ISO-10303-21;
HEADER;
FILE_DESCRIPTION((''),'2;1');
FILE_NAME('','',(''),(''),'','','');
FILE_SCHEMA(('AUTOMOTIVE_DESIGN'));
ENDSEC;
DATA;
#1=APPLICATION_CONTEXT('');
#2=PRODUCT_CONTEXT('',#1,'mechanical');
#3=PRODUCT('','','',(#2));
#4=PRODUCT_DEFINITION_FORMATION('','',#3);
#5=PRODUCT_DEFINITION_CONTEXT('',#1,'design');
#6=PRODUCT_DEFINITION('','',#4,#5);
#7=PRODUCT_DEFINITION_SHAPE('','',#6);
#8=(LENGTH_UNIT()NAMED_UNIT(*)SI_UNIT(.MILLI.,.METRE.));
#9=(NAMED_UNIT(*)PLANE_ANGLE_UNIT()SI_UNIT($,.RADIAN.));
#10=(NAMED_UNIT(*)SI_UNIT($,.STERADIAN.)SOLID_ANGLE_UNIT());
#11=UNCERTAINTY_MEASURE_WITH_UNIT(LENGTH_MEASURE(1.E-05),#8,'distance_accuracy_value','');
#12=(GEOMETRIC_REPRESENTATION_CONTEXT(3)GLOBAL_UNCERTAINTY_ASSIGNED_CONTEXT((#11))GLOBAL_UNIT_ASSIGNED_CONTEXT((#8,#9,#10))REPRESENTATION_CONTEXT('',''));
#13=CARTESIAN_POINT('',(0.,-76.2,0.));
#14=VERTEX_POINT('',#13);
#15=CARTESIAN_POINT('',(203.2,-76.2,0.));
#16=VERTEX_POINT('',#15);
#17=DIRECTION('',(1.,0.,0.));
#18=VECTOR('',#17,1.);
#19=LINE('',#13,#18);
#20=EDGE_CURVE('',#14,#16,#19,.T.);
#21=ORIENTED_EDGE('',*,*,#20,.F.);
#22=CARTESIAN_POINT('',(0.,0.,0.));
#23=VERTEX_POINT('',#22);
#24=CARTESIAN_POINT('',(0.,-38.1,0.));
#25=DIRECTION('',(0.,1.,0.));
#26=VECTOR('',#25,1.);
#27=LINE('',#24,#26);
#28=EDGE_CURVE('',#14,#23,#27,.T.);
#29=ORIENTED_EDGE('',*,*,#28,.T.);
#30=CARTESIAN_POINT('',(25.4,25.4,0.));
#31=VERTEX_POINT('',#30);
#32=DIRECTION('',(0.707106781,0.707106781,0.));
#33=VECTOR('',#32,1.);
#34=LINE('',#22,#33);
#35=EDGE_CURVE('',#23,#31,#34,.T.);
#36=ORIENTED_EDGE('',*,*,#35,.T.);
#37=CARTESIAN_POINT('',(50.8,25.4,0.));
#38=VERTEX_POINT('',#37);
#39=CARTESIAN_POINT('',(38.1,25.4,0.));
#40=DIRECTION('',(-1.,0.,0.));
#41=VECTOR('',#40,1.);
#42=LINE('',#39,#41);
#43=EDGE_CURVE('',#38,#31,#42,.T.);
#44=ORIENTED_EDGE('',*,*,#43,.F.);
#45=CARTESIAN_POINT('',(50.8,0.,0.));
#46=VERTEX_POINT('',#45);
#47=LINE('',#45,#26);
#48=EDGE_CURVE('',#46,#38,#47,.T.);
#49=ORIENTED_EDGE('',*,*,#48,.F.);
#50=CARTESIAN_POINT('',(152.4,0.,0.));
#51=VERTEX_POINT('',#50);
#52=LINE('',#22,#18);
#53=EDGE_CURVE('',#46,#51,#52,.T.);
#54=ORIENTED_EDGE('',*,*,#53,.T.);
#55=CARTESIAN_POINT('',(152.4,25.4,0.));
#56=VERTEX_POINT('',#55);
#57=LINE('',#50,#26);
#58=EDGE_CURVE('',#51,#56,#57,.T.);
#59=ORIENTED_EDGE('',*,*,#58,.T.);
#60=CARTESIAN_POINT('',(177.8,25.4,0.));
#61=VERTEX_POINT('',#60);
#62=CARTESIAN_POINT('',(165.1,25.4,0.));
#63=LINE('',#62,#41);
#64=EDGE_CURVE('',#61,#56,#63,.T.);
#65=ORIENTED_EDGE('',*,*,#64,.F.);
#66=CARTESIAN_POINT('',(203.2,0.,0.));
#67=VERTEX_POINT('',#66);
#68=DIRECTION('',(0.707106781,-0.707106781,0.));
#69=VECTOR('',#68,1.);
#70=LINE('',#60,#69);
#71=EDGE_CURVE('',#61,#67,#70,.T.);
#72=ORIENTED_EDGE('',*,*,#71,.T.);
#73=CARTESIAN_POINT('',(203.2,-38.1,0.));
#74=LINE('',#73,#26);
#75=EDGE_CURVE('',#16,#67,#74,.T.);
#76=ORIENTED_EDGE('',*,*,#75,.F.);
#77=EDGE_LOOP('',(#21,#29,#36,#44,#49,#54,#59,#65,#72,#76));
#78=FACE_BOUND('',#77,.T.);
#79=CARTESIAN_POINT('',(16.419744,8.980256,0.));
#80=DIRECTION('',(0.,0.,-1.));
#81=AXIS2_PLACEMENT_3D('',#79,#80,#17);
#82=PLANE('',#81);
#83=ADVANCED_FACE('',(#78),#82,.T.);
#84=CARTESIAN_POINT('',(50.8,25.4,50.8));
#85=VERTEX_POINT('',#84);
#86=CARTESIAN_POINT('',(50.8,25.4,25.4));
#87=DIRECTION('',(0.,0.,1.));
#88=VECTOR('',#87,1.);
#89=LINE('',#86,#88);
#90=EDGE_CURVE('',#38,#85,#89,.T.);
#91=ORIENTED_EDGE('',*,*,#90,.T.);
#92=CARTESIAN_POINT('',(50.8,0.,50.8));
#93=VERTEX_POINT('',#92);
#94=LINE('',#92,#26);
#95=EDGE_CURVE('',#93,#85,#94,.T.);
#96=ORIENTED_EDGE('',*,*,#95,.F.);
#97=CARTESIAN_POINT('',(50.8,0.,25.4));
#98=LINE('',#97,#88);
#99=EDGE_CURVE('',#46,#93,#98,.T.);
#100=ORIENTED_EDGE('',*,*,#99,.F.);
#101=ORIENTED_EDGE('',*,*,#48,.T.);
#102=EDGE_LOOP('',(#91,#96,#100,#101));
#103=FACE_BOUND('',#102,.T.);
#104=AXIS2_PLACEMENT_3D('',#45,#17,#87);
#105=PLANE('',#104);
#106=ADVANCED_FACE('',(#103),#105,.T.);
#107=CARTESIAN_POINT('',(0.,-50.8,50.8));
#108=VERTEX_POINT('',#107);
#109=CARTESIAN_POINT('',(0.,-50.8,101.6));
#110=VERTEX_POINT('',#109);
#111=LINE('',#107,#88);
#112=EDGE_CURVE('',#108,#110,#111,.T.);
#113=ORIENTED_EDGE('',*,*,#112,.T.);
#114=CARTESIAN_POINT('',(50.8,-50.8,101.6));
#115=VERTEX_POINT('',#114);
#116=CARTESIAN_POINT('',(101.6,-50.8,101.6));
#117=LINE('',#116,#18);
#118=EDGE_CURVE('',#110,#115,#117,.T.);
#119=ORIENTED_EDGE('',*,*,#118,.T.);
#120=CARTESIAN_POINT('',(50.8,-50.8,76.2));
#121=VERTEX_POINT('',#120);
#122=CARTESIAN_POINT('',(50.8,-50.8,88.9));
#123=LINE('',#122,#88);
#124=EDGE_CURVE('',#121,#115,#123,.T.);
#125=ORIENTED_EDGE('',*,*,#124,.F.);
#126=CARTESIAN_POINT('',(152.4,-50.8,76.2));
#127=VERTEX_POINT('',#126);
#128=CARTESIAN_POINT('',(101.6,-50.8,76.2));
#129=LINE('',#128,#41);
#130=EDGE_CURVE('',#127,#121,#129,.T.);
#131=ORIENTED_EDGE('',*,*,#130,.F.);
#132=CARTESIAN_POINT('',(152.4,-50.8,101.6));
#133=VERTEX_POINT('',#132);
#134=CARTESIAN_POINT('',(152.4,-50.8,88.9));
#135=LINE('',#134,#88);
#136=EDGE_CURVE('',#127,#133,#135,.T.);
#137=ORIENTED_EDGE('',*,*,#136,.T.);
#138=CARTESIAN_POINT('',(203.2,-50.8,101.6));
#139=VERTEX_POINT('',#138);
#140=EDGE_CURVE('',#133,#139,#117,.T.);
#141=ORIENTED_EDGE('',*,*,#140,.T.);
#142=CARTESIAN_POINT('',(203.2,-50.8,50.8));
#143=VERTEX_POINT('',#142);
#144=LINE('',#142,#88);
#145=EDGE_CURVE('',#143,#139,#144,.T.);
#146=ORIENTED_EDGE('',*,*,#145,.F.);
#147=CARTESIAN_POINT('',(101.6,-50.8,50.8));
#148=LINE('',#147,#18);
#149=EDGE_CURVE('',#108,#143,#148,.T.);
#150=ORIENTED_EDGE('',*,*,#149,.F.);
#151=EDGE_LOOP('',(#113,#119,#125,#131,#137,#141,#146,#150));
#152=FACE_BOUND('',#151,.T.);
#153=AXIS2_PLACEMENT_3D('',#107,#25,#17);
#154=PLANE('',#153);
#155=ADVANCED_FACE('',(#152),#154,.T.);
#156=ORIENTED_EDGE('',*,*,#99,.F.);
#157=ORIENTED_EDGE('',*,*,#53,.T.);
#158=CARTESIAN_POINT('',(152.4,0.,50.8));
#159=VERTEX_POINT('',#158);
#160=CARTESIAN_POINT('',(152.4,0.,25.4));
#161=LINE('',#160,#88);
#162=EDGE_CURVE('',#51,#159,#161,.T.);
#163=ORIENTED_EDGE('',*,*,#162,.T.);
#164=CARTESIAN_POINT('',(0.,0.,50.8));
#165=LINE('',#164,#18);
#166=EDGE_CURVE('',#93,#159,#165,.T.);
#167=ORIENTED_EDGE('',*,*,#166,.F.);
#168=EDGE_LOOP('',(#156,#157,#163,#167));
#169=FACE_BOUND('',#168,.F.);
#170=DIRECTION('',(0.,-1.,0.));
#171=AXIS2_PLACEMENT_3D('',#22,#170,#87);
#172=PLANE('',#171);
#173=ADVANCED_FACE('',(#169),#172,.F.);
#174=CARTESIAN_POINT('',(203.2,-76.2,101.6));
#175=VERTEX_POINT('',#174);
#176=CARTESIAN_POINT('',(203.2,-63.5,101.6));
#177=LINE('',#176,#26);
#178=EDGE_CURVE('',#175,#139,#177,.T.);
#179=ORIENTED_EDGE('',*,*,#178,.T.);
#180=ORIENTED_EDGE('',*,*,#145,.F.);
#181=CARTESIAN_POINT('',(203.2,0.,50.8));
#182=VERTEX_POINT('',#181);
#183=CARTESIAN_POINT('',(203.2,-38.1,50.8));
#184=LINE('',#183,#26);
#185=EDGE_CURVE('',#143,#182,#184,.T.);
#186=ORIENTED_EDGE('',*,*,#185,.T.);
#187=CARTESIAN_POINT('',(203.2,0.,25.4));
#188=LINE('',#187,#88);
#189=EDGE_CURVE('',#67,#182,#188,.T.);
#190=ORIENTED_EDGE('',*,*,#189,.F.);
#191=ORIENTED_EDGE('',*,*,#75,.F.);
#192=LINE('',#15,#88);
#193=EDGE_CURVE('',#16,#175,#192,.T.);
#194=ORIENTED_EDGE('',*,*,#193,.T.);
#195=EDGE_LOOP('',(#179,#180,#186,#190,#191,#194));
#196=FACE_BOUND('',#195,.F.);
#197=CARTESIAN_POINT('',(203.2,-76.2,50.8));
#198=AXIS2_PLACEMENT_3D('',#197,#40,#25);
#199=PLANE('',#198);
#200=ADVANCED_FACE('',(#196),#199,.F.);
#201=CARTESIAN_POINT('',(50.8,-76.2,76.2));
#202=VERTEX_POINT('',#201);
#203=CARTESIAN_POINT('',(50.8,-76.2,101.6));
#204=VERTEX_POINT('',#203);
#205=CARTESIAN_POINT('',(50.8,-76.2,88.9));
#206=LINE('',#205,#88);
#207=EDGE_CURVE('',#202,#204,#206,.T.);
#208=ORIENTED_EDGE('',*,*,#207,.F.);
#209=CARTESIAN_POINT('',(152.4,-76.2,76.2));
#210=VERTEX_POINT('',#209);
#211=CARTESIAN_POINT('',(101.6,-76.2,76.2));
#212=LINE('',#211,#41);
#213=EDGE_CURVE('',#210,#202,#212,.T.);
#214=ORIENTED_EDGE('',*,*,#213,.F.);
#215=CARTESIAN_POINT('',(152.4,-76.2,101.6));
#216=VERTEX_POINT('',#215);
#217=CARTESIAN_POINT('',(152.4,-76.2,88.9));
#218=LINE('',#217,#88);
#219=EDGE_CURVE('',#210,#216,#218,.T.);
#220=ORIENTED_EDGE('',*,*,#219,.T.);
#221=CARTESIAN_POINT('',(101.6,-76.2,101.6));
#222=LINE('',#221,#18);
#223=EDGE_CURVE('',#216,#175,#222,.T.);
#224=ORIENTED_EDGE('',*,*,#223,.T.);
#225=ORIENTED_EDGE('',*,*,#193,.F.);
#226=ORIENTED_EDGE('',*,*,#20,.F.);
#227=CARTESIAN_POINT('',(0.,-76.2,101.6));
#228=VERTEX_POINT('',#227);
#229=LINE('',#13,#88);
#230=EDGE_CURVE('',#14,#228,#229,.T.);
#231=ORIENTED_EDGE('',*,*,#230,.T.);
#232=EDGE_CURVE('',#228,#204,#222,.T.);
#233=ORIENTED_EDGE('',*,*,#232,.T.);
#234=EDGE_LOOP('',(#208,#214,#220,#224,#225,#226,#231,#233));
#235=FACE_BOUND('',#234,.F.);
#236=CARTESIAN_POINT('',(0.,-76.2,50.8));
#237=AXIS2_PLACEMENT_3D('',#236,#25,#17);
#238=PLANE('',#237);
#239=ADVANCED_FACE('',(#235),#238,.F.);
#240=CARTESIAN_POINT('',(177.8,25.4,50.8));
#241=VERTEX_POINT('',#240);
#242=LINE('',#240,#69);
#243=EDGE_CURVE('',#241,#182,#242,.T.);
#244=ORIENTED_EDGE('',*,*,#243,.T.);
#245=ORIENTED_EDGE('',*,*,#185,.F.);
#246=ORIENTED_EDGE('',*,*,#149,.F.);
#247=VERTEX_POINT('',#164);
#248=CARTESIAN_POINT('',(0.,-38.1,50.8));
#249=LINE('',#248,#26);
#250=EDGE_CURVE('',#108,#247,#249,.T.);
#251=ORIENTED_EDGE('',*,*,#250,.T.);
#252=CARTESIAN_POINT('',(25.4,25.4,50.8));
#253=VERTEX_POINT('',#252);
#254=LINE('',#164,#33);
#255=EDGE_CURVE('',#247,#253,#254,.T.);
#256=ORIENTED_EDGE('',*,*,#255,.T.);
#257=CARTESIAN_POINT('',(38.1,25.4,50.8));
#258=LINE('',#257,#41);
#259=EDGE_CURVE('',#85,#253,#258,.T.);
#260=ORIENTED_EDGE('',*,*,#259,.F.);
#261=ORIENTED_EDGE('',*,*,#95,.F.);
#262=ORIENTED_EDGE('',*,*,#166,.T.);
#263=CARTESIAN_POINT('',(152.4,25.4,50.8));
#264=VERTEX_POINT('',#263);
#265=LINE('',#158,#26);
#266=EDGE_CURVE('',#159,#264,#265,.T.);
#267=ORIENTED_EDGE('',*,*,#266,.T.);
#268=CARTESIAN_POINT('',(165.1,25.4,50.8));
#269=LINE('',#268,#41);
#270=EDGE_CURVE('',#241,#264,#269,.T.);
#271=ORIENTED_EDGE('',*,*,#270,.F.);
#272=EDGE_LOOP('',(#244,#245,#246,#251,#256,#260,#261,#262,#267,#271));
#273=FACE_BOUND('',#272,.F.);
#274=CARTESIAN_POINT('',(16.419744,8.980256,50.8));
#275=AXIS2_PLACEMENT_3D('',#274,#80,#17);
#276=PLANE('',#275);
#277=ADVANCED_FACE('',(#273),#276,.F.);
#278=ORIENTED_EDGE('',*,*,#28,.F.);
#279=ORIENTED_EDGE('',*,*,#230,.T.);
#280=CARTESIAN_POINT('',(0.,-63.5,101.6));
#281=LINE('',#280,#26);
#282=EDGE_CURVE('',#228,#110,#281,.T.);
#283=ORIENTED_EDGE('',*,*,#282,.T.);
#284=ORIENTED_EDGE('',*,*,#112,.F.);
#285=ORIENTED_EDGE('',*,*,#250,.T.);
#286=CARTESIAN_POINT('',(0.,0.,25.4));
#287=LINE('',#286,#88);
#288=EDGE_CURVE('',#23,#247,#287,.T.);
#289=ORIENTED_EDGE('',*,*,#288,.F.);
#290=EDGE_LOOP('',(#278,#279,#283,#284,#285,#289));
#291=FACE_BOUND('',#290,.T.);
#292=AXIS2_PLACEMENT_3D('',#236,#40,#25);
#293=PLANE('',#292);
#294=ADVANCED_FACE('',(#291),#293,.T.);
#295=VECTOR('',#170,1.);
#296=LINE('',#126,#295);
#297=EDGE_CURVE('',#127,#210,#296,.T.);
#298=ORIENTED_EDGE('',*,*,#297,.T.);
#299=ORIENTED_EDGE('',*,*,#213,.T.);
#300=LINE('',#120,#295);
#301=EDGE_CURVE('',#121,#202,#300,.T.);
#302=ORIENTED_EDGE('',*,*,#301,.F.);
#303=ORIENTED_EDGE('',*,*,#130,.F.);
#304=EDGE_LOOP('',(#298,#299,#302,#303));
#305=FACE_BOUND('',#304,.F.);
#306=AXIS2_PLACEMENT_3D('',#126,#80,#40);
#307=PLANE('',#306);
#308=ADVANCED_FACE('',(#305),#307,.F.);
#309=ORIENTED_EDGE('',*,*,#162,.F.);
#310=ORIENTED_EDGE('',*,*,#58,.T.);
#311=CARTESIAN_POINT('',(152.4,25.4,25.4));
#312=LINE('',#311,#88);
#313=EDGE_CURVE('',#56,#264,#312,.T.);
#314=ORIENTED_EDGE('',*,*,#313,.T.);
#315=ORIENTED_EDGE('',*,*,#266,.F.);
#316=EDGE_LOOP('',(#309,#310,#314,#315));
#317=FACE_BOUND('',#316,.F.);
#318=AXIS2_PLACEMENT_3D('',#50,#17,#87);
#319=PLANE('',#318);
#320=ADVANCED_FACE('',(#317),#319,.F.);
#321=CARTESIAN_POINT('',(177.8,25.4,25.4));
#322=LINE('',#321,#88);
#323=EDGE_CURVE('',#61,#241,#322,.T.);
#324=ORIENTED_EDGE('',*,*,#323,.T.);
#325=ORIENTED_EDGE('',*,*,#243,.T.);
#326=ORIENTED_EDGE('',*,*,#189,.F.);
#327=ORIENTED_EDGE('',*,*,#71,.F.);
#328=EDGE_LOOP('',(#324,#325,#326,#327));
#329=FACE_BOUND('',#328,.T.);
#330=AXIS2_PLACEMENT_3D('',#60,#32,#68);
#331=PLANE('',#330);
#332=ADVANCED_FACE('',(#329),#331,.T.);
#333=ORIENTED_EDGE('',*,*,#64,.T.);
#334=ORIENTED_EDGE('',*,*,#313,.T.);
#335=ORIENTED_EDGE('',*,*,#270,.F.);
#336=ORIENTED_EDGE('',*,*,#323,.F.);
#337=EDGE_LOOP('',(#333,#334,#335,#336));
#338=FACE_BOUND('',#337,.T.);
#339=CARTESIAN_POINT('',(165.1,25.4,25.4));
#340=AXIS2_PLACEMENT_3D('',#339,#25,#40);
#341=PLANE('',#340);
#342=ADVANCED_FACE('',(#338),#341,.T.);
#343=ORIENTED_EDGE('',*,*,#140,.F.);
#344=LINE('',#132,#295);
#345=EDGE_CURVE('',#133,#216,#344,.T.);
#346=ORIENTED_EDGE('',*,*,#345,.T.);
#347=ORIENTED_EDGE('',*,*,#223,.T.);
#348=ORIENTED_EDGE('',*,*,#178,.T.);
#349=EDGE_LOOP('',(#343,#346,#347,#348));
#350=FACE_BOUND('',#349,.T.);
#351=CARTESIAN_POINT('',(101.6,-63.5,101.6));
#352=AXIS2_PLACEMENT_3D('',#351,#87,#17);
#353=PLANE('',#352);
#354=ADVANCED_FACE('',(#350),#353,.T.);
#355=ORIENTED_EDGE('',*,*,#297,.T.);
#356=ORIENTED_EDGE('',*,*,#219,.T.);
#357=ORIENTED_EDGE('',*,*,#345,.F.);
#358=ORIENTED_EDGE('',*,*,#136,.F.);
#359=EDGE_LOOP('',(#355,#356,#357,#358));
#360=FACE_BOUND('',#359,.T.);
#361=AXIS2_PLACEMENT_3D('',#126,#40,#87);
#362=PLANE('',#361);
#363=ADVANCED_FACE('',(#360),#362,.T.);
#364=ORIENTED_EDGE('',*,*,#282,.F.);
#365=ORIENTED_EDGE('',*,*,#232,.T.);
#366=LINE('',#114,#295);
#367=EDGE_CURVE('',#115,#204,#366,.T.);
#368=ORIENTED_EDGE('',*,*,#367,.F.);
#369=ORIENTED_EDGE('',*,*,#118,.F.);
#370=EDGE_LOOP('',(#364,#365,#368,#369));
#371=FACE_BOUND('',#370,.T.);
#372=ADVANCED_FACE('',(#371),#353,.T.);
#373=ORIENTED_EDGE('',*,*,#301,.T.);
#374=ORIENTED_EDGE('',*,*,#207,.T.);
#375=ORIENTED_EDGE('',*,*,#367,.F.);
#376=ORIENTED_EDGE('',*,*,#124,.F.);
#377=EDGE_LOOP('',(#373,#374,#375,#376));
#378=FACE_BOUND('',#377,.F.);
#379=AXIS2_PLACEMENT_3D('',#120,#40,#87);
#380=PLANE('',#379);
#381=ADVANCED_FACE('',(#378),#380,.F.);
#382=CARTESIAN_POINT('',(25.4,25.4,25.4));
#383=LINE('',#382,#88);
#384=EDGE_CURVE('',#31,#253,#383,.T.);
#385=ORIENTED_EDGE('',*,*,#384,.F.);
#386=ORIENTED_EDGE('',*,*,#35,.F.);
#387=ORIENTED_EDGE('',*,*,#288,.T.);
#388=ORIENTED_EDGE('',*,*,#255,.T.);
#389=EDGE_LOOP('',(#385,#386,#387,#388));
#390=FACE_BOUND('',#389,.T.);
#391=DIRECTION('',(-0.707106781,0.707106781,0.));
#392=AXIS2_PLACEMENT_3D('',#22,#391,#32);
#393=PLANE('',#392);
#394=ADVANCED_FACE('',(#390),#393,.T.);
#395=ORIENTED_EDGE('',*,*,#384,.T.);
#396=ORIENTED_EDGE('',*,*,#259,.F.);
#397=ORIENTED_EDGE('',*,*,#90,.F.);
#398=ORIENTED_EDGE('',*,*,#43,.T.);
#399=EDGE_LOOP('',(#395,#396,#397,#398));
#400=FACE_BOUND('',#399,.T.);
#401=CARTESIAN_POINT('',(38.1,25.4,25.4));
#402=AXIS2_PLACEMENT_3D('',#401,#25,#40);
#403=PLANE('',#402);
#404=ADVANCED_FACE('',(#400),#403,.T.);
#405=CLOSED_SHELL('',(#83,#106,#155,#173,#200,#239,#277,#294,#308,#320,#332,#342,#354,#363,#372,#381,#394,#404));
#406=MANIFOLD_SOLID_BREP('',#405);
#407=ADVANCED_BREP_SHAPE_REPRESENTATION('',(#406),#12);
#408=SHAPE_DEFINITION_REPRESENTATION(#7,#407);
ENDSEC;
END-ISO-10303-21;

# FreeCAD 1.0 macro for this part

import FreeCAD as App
import Part
import Sketcher

V = App.Vector
Q = App.Units.Quantity


def add_polygon(sketch, points):
    """Adds a closed chain of lines whose ends are joined by coincident constraints."""
    first, n = sketch.GeometryCount, len(points)
    for a, b in zip(points, points[1:] + points[:1]):
        sketch.addGeometry(Part.LineSegment(App.Vector(*a, 0), App.Vector(*b, 0)), False)
    for i in range(n):
        sketch.addConstraint(Sketcher.Constraint("Coincident", first + i, 2, first + (i + 1) % n, 1))

doc = App.newDocument("Part")
body = doc.addObject("PartDesign::Body", "Body")

sketch1 = body.newObject("Sketcher::SketchObject", "Sketch")
sketch1.AttachmentSupport = (doc.getObject("YZ_Plane"), [""])
sketch1.MapMode = "FlatFace"
add_polygon(sketch1, [(-76.2, 50.8), (-76.2, 0), (0, 0), (0, 50.8)])
sketch1.addConstraint([
    Sketcher.Constraint("Vertical", 0),
    Sketcher.Constraint("Horizontal", 1),
    Sketcher.Constraint("Vertical", 2),
    Sketcher.Constraint("Horizontal", 3),
    Sketcher.Constraint("Coincident", 1, 2, -1, 1),
    Sketcher.Constraint("DistanceX", 1, 1, 1, 2, Q("3 in")),
    Sketcher.Constraint("DistanceY", 0, 2, 0, 1, Q("2 in")),
])
pad1 = body.newObject("PartDesign::Pad", "Pad")
pad1.Profile = sketch1
pad1.Length = Q("8 in")

sketch2 = body.newObject("Sketcher::SketchObject", "Sketch001")
sketch2.AttachmentSupport = (doc.getObject("XY_Plane"), [""])
sketch2.MapMode = "FlatFace"
sketch2.AttachmentOffset = App.Placement(V(0, 0, 2 * 25.4), App.Rotation())
add_polygon(sketch2, [(0, -50.8), (0, -76.2), (203.2, -76.2), (203.2, -50.8)])
sketch2.addConstraint([
    Sketcher.Constraint("Vertical", 0),
    Sketcher.Constraint("Horizontal", 1),
    Sketcher.Constraint("Vertical", 2),
    Sketcher.Constraint("Horizontal", 3),
    Sketcher.Constraint("PointOnObject", 0, 2, -2),
    Sketcher.Constraint("DistanceX", 1, 1, 1, 2, Q("8 in")),
    Sketcher.Constraint("DistanceY", 0, 2, 0, 1, Q("1 in")),
    Sketcher.Constraint("DistanceY", 0, 2, -1, 1, Q("3 in")),
])
pad2 = body.newObject("PartDesign::Pad", "Pad001")
pad2.Profile = sketch2
pad2.Length = Q("2 in")

sketch3 = body.newObject("Sketcher::SketchObject", "Sketch002")
sketch3.AttachmentSupport = (doc.getObject("XZ_Plane"), [""])
sketch3.MapMode = "FlatFace"
sketch3.AttachmentOffset = App.Placement(V(0, 0, 2 * 25.4), App.Rotation())
add_polygon(sketch3, [(152.4, 101.6), (152.4, 76.2), (50.8, 76.2), (50.8, 101.6)])
sketch3.addConstraint([
    Sketcher.Constraint("Vertical", 0),
    Sketcher.Constraint("Horizontal", 1),
    Sketcher.Constraint("Vertical", 2),
    Sketcher.Constraint("Horizontal", 3),
    Sketcher.Constraint("DistanceX", 1, 2, 1, 1, Q("4 in")),
    Sketcher.Constraint("DistanceY", 0, 2, 0, 1, Q("1 in")),
    Sketcher.Constraint("DistanceX", -1, 1, 0, 2, Q("6 in")),
    Sketcher.Constraint("DistanceY", -1, 1, 0, 2, Q("3 in")),
])
pocket1 = body.newObject("PartDesign::Pocket", "Pocket")
pocket1.Profile = sketch3
pocket1.Length = Q("1 in")
pocket1.Reversed = True

sketch4 = body.newObject("Sketcher::SketchObject", "Sketch003")
sketch4.AttachmentSupport = (doc.getObject("XZ_Plane"), [""])
sketch4.MapMode = "FlatFace"
add_polygon(sketch4, [(177.8, 50.8), (177.8, 0), (152.4, 0), (152.4, 50.8)])
sketch4.addConstraint([
    Sketcher.Constraint("Vertical", 0),
    Sketcher.Constraint("Horizontal", 1),
    Sketcher.Constraint("Vertical", 2),
    Sketcher.Constraint("Horizontal", 3),
    Sketcher.Constraint("PointOnObject", 0, 2, -1),
    Sketcher.Constraint("DistanceX", 1, 2, 1, 1, Q("1 in")),
    Sketcher.Constraint("DistanceY", 0, 2, 0, 1, Q("2 in")),
    Sketcher.Constraint("DistanceX", -1, 1, 0, 2, Q("7 in")),
])
pad3 = body.newObject("PartDesign::Pad", "Pad002")
pad3.Profile = sketch4
pad3.Length = Q("1 in")
pad3.Reversed = True

sketch5 = body.newObject("Sketcher::SketchObject", "Sketch004")
sketch5.AttachmentSupport = (doc.getObject("XZ_Plane"), [""])
sketch5.MapMode = "FlatFace"
add_polygon(sketch5, [(50.8, 50.8), (50.8, 0), (25.4, 0), (25.4, 50.8)])
sketch5.addConstraint([
    Sketcher.Constraint("Vertical", 0),
    Sketcher.Constraint("Horizontal", 1),
    Sketcher.Constraint("Vertical", 2),
    Sketcher.Constraint("Horizontal", 3),
    Sketcher.Constraint("PointOnObject", 0, 2, -1),
    Sketcher.Constraint("DistanceX", 1, 2, 1, 1, Q("1 in")),
    Sketcher.Constraint("DistanceY", 0, 2, 0, 1, Q("2 in")),
    Sketcher.Constraint("DistanceX", -1, 1, 0, 2, Q("2 in")),
])
pad4 = body.newObject("PartDesign::Pad", "Pad003")
pad4.Profile = sketch5
pad4.Length = Q("1 in")
pad4.Reversed = True

sketch6 = body.newObject("Sketcher::SketchObject", "Sketch005")
sketch6.AttachmentSupport = (doc.getObject("XY_Plane"), [""])
sketch6.MapMode = "FlatFace"
add_polygon(sketch6, [(177.8, 0), (177.8, 25.4), (203.2, 0)])
sketch6.addConstraint([
    Sketcher.Constraint("Vertical", 0),
    Sketcher.Constraint("Horizontal", 2),
    Sketcher.Constraint("PointOnObject", 1, 2, -1),
    Sketcher.Constraint("Equal", 2, 0),
    Sketcher.Constraint("DistanceX", 2, 2, 2, 1, Q("1 in")),
    Sketcher.Constraint("DistanceX", -1, 1, 0, 2, Q("7 in")),
])
pad5 = body.newObject("PartDesign::Pad", "Pad004")
pad5.Profile = sketch6
pad5.Length = Q("2 in")

sketch7 = body.newObject("Sketcher::SketchObject", "Sketch006")
sketch7.AttachmentSupport = (doc.getObject("XY_Plane"), [""])
sketch7.MapMode = "FlatFace"
add_polygon(sketch7, [(0, 0), (25.4, 25.4), (25.4, 0)])
sketch7.addConstraint([
    Sketcher.Constraint("Vertical", 1),
    Sketcher.Constraint("Horizontal", 2),
    Sketcher.Constraint("Coincident", 2, 2, -1, 1),
    Sketcher.Constraint("Equal", 2, 1),
    Sketcher.Constraint("DistanceX", 2, 2, 2, 1, Q("1 in")),
])
pad6 = body.newObject("PartDesign::Pad", "Pad005")
pad6.Profile = sketch7
pad6.Length = Q("2 in")

doc.recompute()
